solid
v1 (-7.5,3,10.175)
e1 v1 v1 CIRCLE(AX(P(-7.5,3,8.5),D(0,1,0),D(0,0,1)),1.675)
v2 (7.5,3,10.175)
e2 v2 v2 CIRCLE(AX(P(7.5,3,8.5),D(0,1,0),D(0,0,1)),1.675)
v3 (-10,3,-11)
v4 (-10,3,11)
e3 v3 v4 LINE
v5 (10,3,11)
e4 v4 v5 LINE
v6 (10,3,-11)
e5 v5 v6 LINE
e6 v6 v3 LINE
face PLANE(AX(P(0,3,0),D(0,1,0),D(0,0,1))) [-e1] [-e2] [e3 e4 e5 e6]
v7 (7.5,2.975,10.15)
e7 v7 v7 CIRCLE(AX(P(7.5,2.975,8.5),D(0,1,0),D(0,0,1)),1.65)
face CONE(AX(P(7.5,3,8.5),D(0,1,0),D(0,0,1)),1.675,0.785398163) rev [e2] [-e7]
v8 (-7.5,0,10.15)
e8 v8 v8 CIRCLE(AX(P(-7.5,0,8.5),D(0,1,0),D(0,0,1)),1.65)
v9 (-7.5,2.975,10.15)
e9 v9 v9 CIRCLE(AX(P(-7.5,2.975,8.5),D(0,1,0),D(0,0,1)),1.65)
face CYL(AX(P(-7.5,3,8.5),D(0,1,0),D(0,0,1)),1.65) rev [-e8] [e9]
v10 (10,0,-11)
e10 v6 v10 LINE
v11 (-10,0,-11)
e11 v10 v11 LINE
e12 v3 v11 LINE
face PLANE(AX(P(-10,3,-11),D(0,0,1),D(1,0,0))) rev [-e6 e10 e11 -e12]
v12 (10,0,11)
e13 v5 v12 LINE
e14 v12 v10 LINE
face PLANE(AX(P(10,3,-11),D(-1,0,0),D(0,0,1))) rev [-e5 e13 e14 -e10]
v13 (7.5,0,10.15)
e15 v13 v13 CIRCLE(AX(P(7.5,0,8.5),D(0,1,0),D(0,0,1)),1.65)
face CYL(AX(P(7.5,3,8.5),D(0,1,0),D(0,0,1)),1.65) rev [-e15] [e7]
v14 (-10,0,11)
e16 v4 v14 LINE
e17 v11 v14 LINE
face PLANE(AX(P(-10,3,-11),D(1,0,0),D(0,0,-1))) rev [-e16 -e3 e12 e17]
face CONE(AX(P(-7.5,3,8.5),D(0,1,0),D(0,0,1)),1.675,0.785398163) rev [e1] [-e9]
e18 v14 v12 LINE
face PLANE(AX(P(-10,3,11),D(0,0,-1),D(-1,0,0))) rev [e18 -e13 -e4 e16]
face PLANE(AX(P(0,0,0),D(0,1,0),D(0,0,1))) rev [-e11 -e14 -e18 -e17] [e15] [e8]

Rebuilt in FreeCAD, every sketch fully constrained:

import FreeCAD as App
import Part
import Sketcher

doc = App.newDocument("Part")
body = doc.addObject("PartDesign::Body", "Body")

sketch1 = body.newObject("Sketcher::SketchObject", "Sketch")
sketch1.AttachmentSupport = (doc.getObject("XZ_Plane"), [""])
sketch1.MapMode = "FlatFace"
sketch1.addGeometry(Part.LineSegment(App.Vector(-10, -11, 0), App.Vector(-10, 11, 0)), False)
sketch1.addGeometry(Part.LineSegment(App.Vector(-10, 11, 0), App.Vector(10, 11, 0)), False)
sketch1.addGeometry(Part.LineSegment(App.Vector(10, 11, 0), App.Vector(10, -11, 0)), False)
sketch1.addGeometry(Part.LineSegment(App.Vector(10, -11, 0), App.Vector(-10, -11, 0)), False)
sketch1.addConstraint(Sketcher.Constraint("Coincident", 0, 2, 1, 1))
sketch1.addConstraint(Sketcher.Constraint("Coincident", 1, 2, 2, 1))
sketch1.addConstraint(Sketcher.Constraint("Coincident", 2, 2, 3, 1))
sketch1.addConstraint(Sketcher.Constraint("Coincident", 3, 2, 0, 1))
sketch1.addConstraint(Sketcher.Constraint("Vertical", 0))
sketch1.addConstraint(Sketcher.Constraint("Horizontal", 1))
sketch1.addConstraint(Sketcher.Constraint("Vertical", 2))
sketch1.addConstraint(Sketcher.Constraint("Horizontal", 3))
sketch1.addConstraint(Sketcher.Constraint("Symmetric", 0, 2, 2, 2, -1, 1))
sketch1.addConstraint(Sketcher.Constraint("DistanceX", 1, 1, 1, 2, 20.0))
sketch1.addConstraint(Sketcher.Constraint("DistanceY", 0, 1, 0, 2, 22.0))
pad1 = body.newObject("PartDesign::Pad", "Pad")
pad1.Profile = sketch1
pad1.Length = 3
pad1.Reversed = True

sketch2 = body.newObject("Sketcher::SketchObject", "Sketch001")
sketch2.AttachmentSupport = (doc.getObject("XZ_Plane"), [""])
sketch2.MapMode = "FlatFace"
sketch2.AttachmentOffset = App.Placement(App.Vector(0, 0, -3), App.Rotation())
sketch2.addGeometry(Part.Circle(App.Vector(7.5, 8.5, 0), App.Vector(0, 0, 1), 1.6), False)
sketch2.addGeometry(Part.Circle(App.Vector(-7.5, 8.5, 0), App.Vector(0, 0, 1), 1.6), False)
sketch2.addConstraint(Sketcher.Constraint("Equal", 0, 1))
sketch2.addConstraint(Sketcher.Constraint("Symmetric", 0, 3, 1, 3, -2))
sketch2.addConstraint(Sketcher.Constraint("Diameter", 0, 3.3))
sketch2.addConstraint(Sketcher.Constraint("DistanceX", 1, 3, 0, 3, 15.0))
sketch2.addConstraint(Sketcher.Constraint("DistanceY", -1, 1, 0, 3, 8.5))
doc.recompute()
hole = body.newObject("PartDesign::Hole", "Hole")
hole.Profile = sketch2
hole.ThreadType = "None"
hole.Diameter = 3.3
hole.DepthType = "ThroughAll"
hole.HoleCutType = "Countersink"
hole.HoleCutDiameter = 3.35
hole.HoleCutCountersinkAngle = 90
hole.Reversed = True

doc.recompute()
